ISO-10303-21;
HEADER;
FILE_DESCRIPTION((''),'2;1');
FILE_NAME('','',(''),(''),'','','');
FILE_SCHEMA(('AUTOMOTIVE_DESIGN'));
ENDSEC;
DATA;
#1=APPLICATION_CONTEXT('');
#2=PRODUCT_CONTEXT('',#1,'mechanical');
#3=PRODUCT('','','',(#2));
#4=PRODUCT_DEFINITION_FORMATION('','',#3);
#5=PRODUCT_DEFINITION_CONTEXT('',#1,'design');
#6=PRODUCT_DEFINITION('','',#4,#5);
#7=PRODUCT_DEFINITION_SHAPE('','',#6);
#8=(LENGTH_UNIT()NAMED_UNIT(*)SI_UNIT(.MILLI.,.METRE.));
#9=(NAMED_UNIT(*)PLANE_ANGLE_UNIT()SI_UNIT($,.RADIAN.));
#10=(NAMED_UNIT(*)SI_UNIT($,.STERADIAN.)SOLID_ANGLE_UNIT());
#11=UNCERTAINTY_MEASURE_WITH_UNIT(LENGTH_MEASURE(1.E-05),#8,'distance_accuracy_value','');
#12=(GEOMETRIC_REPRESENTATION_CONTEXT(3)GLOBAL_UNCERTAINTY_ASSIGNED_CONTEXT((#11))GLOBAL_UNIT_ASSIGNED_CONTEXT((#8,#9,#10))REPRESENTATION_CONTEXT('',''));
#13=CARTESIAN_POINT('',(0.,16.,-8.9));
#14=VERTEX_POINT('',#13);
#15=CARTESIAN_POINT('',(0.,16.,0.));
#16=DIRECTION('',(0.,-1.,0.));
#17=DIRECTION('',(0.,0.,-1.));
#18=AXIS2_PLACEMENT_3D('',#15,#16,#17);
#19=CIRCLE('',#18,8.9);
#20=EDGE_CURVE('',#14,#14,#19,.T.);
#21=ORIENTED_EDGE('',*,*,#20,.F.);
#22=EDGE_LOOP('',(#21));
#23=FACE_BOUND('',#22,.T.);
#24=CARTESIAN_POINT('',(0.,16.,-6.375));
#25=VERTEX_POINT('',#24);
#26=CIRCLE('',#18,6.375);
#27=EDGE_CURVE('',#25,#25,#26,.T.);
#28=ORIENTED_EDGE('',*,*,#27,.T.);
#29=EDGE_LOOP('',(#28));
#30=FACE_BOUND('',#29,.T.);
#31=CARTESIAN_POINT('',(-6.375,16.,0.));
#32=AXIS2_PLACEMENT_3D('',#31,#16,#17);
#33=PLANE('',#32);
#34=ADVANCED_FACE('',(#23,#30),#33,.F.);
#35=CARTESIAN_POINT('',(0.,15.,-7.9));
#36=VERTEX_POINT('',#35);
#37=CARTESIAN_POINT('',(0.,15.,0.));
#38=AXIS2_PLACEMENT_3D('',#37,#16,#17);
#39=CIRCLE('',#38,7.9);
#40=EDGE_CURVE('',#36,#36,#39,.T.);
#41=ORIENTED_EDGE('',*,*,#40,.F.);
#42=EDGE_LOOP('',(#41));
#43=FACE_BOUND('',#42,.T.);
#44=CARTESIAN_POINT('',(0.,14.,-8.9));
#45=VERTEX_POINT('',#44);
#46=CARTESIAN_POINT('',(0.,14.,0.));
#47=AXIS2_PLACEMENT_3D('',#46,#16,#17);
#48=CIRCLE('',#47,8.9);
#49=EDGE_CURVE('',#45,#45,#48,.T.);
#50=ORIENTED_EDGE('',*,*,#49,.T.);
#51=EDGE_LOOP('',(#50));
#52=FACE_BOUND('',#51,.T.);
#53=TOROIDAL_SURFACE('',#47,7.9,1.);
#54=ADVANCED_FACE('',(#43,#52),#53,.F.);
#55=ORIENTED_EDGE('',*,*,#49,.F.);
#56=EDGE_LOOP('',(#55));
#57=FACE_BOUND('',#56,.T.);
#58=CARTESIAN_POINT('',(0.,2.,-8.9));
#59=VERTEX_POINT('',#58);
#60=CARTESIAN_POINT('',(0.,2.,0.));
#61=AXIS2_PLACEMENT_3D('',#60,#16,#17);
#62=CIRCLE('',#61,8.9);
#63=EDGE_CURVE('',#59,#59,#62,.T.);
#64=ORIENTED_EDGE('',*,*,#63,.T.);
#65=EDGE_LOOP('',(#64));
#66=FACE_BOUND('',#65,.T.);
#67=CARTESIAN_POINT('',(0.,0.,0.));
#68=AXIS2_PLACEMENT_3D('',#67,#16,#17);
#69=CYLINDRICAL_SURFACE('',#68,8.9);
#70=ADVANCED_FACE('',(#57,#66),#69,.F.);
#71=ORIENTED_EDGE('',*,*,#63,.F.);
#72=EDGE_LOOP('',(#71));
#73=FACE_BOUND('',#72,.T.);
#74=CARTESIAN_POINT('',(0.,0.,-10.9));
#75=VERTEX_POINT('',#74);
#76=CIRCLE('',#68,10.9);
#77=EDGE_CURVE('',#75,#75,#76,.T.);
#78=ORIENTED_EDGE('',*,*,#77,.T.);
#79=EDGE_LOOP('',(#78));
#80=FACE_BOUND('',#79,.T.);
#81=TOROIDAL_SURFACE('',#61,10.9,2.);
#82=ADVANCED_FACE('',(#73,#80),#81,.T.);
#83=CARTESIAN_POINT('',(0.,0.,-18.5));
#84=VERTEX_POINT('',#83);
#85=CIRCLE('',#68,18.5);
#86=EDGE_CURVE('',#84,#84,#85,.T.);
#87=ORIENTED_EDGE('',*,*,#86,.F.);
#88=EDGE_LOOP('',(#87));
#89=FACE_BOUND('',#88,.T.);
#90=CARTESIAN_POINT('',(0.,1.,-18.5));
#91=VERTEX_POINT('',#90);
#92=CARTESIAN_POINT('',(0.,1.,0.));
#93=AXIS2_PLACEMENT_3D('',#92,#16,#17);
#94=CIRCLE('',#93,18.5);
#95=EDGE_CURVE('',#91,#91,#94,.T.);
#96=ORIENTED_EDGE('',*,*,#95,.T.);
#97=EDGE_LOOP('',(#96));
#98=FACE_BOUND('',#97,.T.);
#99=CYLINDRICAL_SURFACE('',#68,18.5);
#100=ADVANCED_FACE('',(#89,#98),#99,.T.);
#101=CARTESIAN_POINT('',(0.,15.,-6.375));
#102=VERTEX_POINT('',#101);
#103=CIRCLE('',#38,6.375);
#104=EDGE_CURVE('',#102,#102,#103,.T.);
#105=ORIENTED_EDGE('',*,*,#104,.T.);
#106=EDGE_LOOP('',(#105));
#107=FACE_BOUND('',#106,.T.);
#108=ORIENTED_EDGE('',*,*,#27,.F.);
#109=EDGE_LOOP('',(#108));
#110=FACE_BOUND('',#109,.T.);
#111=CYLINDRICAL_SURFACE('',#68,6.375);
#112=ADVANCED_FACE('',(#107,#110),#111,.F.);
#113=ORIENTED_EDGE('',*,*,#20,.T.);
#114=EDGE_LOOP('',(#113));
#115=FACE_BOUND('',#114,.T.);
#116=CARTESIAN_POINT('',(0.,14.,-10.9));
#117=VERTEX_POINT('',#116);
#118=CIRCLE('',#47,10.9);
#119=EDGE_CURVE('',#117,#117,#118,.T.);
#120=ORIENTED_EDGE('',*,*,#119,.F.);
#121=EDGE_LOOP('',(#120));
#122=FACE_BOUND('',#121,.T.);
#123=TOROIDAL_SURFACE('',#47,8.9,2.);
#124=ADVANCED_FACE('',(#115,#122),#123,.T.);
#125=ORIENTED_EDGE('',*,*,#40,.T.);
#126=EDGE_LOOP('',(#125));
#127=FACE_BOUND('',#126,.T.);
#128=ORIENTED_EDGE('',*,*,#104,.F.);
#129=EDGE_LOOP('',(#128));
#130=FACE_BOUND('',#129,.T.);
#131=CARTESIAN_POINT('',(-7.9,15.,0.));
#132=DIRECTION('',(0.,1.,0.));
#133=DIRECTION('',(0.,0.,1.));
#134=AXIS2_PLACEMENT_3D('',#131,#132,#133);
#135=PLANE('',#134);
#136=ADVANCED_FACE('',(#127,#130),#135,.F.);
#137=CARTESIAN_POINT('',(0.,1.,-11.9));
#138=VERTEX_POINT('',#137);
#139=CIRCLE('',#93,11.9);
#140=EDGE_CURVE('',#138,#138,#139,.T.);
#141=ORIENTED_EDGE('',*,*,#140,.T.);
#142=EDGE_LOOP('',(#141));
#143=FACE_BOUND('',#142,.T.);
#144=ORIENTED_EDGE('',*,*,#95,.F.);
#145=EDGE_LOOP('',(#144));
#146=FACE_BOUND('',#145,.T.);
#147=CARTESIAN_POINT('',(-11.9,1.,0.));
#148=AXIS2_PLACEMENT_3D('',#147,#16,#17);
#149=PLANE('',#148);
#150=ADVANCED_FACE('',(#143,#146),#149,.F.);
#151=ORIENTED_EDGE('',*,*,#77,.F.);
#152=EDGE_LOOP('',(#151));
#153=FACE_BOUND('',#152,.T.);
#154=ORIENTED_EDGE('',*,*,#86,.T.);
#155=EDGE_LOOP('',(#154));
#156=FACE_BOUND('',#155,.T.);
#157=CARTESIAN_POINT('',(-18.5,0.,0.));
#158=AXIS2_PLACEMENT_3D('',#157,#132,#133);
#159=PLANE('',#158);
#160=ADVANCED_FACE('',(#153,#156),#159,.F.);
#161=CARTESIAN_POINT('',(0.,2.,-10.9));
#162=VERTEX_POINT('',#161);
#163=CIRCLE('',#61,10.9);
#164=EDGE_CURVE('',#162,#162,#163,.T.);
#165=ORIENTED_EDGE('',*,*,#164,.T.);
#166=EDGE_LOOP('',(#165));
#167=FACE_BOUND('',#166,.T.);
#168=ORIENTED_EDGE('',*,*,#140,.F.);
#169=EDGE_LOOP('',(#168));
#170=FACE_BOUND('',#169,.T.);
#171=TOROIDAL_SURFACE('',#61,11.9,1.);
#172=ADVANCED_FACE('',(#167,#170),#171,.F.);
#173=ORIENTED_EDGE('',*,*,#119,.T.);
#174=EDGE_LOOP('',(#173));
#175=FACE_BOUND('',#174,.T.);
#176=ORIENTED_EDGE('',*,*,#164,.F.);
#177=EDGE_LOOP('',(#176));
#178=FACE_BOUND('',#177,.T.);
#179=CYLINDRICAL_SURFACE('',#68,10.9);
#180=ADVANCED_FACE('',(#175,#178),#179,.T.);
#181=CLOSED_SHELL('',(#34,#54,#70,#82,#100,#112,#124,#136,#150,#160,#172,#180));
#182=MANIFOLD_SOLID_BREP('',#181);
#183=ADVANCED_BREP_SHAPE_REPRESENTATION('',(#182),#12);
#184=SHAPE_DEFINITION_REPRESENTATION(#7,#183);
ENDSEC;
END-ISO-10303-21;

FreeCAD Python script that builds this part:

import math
import FreeCAD as App
import Part
import Sketcher
from FreeCAD import Vector
Q = App.Units.Quantity

doc = App.newDocument("Part")
params = doc.addObject("Spreadsheet::Sheet", "Params")
for row, (alias, value) in enumerate([
    ("sketch1_radius", "2 mm"),
    ("sketch1_radius2", "1 mm"),
    ("sketch1_height", "12 mm"),
    ("sketch1_width", "7.6 mm"),
    ("revolution_angle", "360 deg"),
], start=1):
    params.set(f"A{row}", alias)
    params.set(f"B{row}", "=" + value)
    params.setAlias(f"B{row}", alias)

body = doc.addObject("PartDesign::Body", "Body")

# Sketch on XY plane
sketch1 = body.newObject("Sketcher::SketchObject", "Sketch")
sketch1.AttachmentSupport = (doc.getObject("XY_Plane"), [""])
sketch1.MapMode = "FlatFace"
sketch1.addGeometry(Part.LineSegment(Vector(-18.5, 0, 0), Vector(-10.9, 0, 0)), False)
sketch1.addGeometry(Part.ArcOfCircle(Part.Circle(Vector(-10.9, 2, 0), Vector(0, 0, 1), 2), math.radians(-90), math.radians(0)), False)
sketch1.addGeometry(Part.LineSegment(Vector(-8.9, 2, 0), Vector(-8.9, 14, 0)), False)
sketch1.addGeometry(Part.ArcOfCircle(Part.Circle(Vector(-7.9, 14, 0), Vector(0, 0, 1), 1), math.radians(90), math.radians(180)), False)
sketch1.addGeometry(Part.LineSegment(Vector(-7.9, 15, 0), Vector(-6.375, 15, 0)), False)
sketch1.addGeometry(Part.LineSegment(Vector(-6.375, 15, 0), Vector(-6.375, 16, 0)), False)
sketch1.addGeometry(Part.LineSegment(Vector(-6.375, 16, 0), Vector(-8.9, 16, 0)), False)
sketch1.addGeometry(Part.ArcOfCircle(Part.Circle(Vector(-8.9, 14, 0), Vector(0, 0, 1), 2), math.radians(90), math.radians(180)), False)
sketch1.addGeometry(Part.LineSegment(Vector(-10.9, 14, 0), Vector(-10.9, 2, 0)), False)
sketch1.addGeometry(Part.ArcOfCircle(Part.Circle(Vector(-11.9, 2, 0), Vector(0, 0, 1), 1), math.radians(-90), math.radians(0)), False)
sketch1.addGeometry(Part.LineSegment(Vector(-11.9, 1, 0), Vector(-18.5, 1, 0)), False)
sketch1.addGeometry(Part.LineSegment(Vector(-18.5, 1, 0), Vector(-18.5, 0, 0)), False)
sketch1.addConstraint(Sketcher.Constraint("Tangent", 0, 2, 1, 1))
sketch1.addConstraint(Sketcher.Constraint("Tangent", 1, 2, 2, 1))
sketch1.addConstraint(Sketcher.Constraint("Tangent", 2, 2, 3, 2))
sketch1.addConstraint(Sketcher.Constraint("Tangent", 3, 1, 4, 1))
sketch1.addConstraint(Sketcher.Constraint("Coincident", 4, 2, 5, 1))
sketch1.addConstraint(Sketcher.Constraint("Coincident", 5, 2, 6, 1))
sketch1.addConstraint(Sketcher.Constraint("Tangent", 6, 2, 7, 1))
sketch1.addConstraint(Sketcher.Constraint("Tangent", 7, 2, 8, 1))
sketch1.addConstraint(Sketcher.Constraint("Tangent", 8, 2, 9, 2))
sketch1.addConstraint(Sketcher.Constraint("Tangent", 9, 1, 10, 1))
sketch1.addConstraint(Sketcher.Constraint("Coincident", 10, 2, 11, 1))
sketch1.addConstraint(Sketcher.Constraint("Coincident", 11, 2, 0, 1))
sketch1.addConstraint(Sketcher.Constraint("Horizontal", 0))
sketch1.addConstraint(Sketcher.Constraint("Vertical", 2))
sketch1.addConstraint(Sketcher.Constraint("Horizontal", 4))
sketch1.addConstraint(Sketcher.Constraint("Vertical", 5))
sketch1.addConstraint(Sketcher.Constraint("Horizontal", 6))
sketch1.addConstraint(Sketcher.Constraint("Vertical", 8))
sketch1.addConstraint(Sketcher.Constraint("Horizontal", 10))
sketch1.addConstraint(Sketcher.Constraint("Vertical", 11))
sketch1.addConstraint(Sketcher.Constraint("Coincident", 2, 2, 7, 3))
sketch1.addConstraint(Sketcher.Constraint("Coincident", 8, 2, 1, 3))
sketch1.addConstraint(Sketcher.Constraint("Equal", 3, 9))
sketch1.addConstraint(Sketcher.Constraint("PointOnObject", 0, 2, -1))
sketch1.addConstraint(Sketcher.Constraint("Radius", 1, Q("2 mm")))
sketch1.addConstraint(Sketcher.Constraint("Radius", 3, Q("1 mm")))
sketch1.addConstraint(Sketcher.Constraint("DistanceY", 2, 1, 2, 2, Q("12 mm")))
sketch1.addConstraint(Sketcher.Constraint("DistanceX", 0, 1, 0, 2, Q("7.6 mm")))
sketch1.addConstraint(Sketcher.Constraint("DistanceX", 1, 3, -1, 1, Q("10.9 mm")))
sketch1.addConstraint(Sketcher.Constraint("DistanceX", 4, 1, 4, 2, Q("1.525 mm")))
sketch1.setExpression("Constraints[24]", "Params.sketch1_radius")
sketch1.setExpression("Constraints[25]", "Params.sketch1_radius2")
sketch1.setExpression("Constraints[26]", "Params.sketch1_height")
sketch1.setExpression("Constraints[27]", "Params.sketch1_width")
revolution = body.newObject("PartDesign::Revolution", "Revolution")
revolution.Profile = sketch1
revolution.ReferenceAxis = (sketch1, ["V_Axis"])
revolution.setExpression("Angle", "Params.revolution_angle")

doc.recompute()
